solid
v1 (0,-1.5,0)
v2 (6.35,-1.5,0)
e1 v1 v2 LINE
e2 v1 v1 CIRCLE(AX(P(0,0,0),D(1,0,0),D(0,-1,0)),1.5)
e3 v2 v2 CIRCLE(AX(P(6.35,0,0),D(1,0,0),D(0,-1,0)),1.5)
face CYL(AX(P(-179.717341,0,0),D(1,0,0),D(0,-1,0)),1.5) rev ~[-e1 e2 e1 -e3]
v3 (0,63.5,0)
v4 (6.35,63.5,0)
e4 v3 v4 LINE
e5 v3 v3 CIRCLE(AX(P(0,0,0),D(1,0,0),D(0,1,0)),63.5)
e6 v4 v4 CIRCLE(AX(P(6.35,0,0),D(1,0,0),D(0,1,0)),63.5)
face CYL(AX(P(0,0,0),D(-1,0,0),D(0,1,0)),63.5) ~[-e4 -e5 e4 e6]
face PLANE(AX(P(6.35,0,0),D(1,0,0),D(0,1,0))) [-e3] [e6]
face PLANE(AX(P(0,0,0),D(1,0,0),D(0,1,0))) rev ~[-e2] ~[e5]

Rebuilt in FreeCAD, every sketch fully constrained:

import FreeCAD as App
import Part
import Sketcher
Q = App.Units.Quantity

doc = App.newDocument("Part")
params = doc.addObject("Spreadsheet::Sheet", "Params")
for row, (alias, value) in enumerate([
    ("sketch1_diameter", "5 in"),
    ("pad1_length", "0.25 in"),
    ("hole_diameter", "3 mm"),
], start=1):
    params.set(f"A{row}", alias)
    params.set(f"B{row}", "=" + value)
    params.setAlias(f"B{row}", alias)

body = doc.addObject("PartDesign::Body", "Body")

sketch1 = doc.addObject("Sketcher::SketchObject", "Sketch")
body.addObject(sketch1)
sketch1.AttachmentSupport = (doc.YZ_Plane, [""])
sketch1.MapMode = "FlatFace"
sketch1.addGeometry(Part.Circle(App.Vector(0, 0, 0), App.Vector(0, 0, 1), 64), False)
sketch1.addConstraint([
    Sketcher.Constraint("Coincident", 0, 3, -1, 1),
    Sketcher.Constraint("Diameter", 0, Q("5 in")),
])
sketch1.setExpression("Constraints[1]", "Params.sketch1_diameter")
pad1 = doc.addObject("PartDesign::Pad", "Pad")
body.addObject(pad1)
pad1.Profile = sketch1
pad1.setExpression("Length", "Params.pad1_length")

sketch2 = doc.addObject("Sketcher::SketchObject", "Sketch001")
body.addObject(sketch2)
sketch2.AttachmentSupport = (doc.YZ_Plane, [""])
sketch2.MapMode = "FlatFace"
sketch2.addGeometry(Part.Circle(App.Vector(0, 0, 0), App.Vector(0, 0, 1), 1.5), False)
sketch2.addConstraint([
    Sketcher.Constraint("Coincident", 0, 3, -1, 1),
    Sketcher.Constraint("Diameter", 0, 3.0),
])
doc.recompute()
hole = doc.addObject("PartDesign::Hole", "Hole")
body.addObject(hole)
hole.Profile = sketch2
hole.ThreadType = "None"
hole.setExpression("Diameter", "Params.hole_diameter")
hole.DepthType = "ThroughAll"
hole.Reversed = True

doc.recompute()
